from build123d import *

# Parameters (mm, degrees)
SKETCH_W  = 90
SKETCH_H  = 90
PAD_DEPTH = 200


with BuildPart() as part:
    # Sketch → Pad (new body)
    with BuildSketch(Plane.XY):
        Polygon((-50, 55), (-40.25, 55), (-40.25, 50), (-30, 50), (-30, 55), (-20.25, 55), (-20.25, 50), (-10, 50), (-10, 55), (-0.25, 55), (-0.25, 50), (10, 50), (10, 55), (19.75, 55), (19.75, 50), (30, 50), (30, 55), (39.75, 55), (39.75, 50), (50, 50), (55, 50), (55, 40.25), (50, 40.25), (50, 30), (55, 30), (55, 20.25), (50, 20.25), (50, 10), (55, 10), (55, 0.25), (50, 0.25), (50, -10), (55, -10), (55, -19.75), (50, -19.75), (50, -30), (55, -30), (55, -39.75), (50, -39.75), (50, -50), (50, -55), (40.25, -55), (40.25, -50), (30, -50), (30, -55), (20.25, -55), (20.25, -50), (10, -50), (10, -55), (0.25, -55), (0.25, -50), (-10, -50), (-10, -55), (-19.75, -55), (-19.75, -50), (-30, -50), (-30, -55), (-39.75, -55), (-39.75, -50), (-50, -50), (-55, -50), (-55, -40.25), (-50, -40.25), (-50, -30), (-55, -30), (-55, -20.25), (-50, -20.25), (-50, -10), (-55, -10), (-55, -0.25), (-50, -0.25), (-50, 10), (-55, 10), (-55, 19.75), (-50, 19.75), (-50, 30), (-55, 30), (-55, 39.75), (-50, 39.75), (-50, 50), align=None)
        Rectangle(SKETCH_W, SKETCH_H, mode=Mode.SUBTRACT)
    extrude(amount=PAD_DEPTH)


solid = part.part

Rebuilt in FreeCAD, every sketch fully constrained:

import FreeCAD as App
import Part
import Sketcher
from FreeCAD import Vector


def add_polygon(sketch, points):
    """Adds a closed chain of lines whose ends are joined by coincident constraints."""
    first, n = sketch.GeometryCount, len(points)
    for a, b in zip(points, points[1:] + points[:1]):
        sketch.addGeometry(Part.LineSegment(App.Vector(*a, 0), App.Vector(*b, 0)), False)
    for i in range(n):
        sketch.addConstraint(Sketcher.Constraint("Coincident", first + i, 2, first + (i + 1) % n, 1))

doc = App.newDocument("Part")
params = doc.addObject("Spreadsheet::Sheet", "Params")
for row, (alias, value) in enumerate([
    ("sketch1_width", "5 mm"),
    ("sketch1_width2", "90 mm"),
    ("sketch1_width3", "9.75 mm"),
    ("pad1_length", "200 mm"),
], start=1):
    params.set(f"A{row}", alias)
    params.set(f"B{row}", "=" + value)
    params.setAlias(f"B{row}", alias)

body = doc.addObject("PartDesign::Body", "Body")

# Sketch on XY plane
sketch1 = body.newObject("Sketcher::SketchObject", "Sketch")
sketch1.AttachmentSupport = (doc.getObject("XY_Plane"), [""])
sketch1.MapMode = "FlatFace"
add_polygon(sketch1, [(-40, 55), (-50, 55), (-50, 40), (-55, 40), (-55, 30), (-50, 30), (-50, 20), (-55, 20), (-55, 10), (-50, 10), (-50, 0), (-55, 0), (-55, -10), (-50, -10), (-50, -20), (-55, -20), (-55, -30), (-50, -30), (-50, -40), (-55, -40), (-55, -50), (-40, -50), (-40, -55), (-30, -55), (-30, -50), (-20, -50), (-20, -55), (-10, -55), (-10, -50), (0, -50), (0, -55), (10, -55), (10, -50), (20, -50), (20, -55), (30, -55), (30, -50), (40, -50), (40, -55), (50, -55), (50, -40), (55, -40), (55, -30), (50, -30), (50, -20), (55, -20), (55, -10), (50, -10), (50, 0), (55, 0), (55, 10), (50, 10), (50, 20), (55, 20), (55, 30), (50, 30), (50, 40), (55, 40), (55, 50), (40, 50), (40, 55), (30, 55), (30, 50), (20, 50), (20, 55), (10, 55), (10, 50), (0, 50), (0, 55), (-10, 55), (-10, 50), (-20, 50), (-20, 55), (-30, 55), (-30, 50), (-40, 50)])  # lines 0-75
add_polygon(sketch1, [(-45, -45), (-45, 45), (45, 45), (45, -45)])  # lines 76-79
sketch1.addConstraint(Sketcher.Constraint("Horizontal", 0))
sketch1.addConstraint(Sketcher.Constraint("Vertical", 1))
sketch1.addConstraint(Sketcher.Constraint("Horizontal", 2))
sketch1.addConstraint(Sketcher.Constraint("Vertical", 3))
sketch1.addConstraint(Sketcher.Constraint("Horizontal", 4))
sketch1.addConstraint(Sketcher.Constraint("Vertical", 5))
sketch1.addConstraint(Sketcher.Constraint("Horizontal", 6))
sketch1.addConstraint(Sketcher.Constraint("Vertical", 7))
sketch1.addConstraint(Sketcher.Constraint("Horizontal", 8))
sketch1.addConstraint(Sketcher.Constraint("Vertical", 9))
sketch1.addConstraint(Sketcher.Constraint("Horizontal", 10))
sketch1.addConstraint(Sketcher.Constraint("Vertical", 11))
sketch1.addConstraint(Sketcher.Constraint("Horizontal", 12))
sketch1.addConstraint(Sketcher.Constraint("Vertical", 13))
sketch1.addConstraint(Sketcher.Constraint("Horizontal", 14))
sketch1.addConstraint(Sketcher.Constraint("Vertical", 15))
sketch1.addConstraint(Sketcher.Constraint("Horizontal", 16))
sketch1.addConstraint(Sketcher.Constraint("Vertical", 17))
sketch1.addConstraint(Sketcher.Constraint("Horizontal", 18))
sketch1.addConstraint(Sketcher.Constraint("Vertical", 19))
sketch1.addConstraint(Sketcher.Constraint("Horizontal", 20))
sketch1.addConstraint(Sketcher.Constraint("Vertical", 21))
sketch1.addConstraint(Sketcher.Constraint("Horizontal", 22))
sketch1.addConstraint(Sketcher.Constraint("Vertical", 23))
sketch1.addConstraint(Sketcher.Constraint("Horizontal", 24))
sketch1.addConstraint(Sketcher.Constraint("Vertical", 25))
sketch1.addConstraint(Sketcher.Constraint("Horizontal", 26))
sketch1.addConstraint(Sketcher.Constraint("Vertical", 27))
sketch1.addConstraint(Sketcher.Constraint("Horizontal", 28))
sketch1.addConstraint(Sketcher.Constraint("Vertical", 29))
sketch1.addConstraint(Sketcher.Constraint("Horizontal", 30))
sketch1.addConstraint(Sketcher.Constraint("Vertical", 31))
sketch1.addConstraint(Sketcher.Constraint("Horizontal", 32))
sketch1.addConstraint(Sketcher.Constraint("Vertical", 33))
sketch1.addConstraint(Sketcher.Constraint("Horizontal", 34))
sketch1.addConstraint(Sketcher.Constraint("Vertical", 35))
sketch1.addConstraint(Sketcher.Constraint("Horizontal", 36))
sketch1.addConstraint(Sketcher.Constraint("Vertical", 37))
sketch1.addConstraint(Sketcher.Constraint("Horizontal", 38))
sketch1.addConstraint(Sketcher.Constraint("Vertical", 39))
sketch1.addConstraint(Sketcher.Constraint("Horizontal", 40))
sketch1.addConstraint(Sketcher.Constraint("Vertical", 41))
sketch1.addConstraint(Sketcher.Constraint("Horizontal", 42))
sketch1.addConstraint(Sketcher.Constraint("Vertical", 43))
sketch1.addConstraint(Sketcher.Constraint("Horizontal", 44))
sketch1.addConstraint(Sketcher.Constraint("Vertical", 45))
sketch1.addConstraint(Sketcher.Constraint("Horizontal", 46))
sketch1.addConstraint(Sketcher.Constraint("Vertical", 47))
sketch1.addConstraint(Sketcher.Constraint("Horizontal", 48))
sketch1.addConstraint(Sketcher.Constraint("Vertical", 49))
sketch1.addConstraint(Sketcher.Constraint("Horizontal", 50))
sketch1.addConstraint(Sketcher.Constraint("Vertical", 51))
sketch1.addConstraint(Sketcher.Constraint("Horizontal", 52))
sketch1.addConstraint(Sketcher.Constraint("Vertical", 53))
sketch1.addConstraint(Sketcher.Constraint("Horizontal", 54))
sketch1.addConstraint(Sketcher.Constraint("Vertical", 55))
sketch1.addConstraint(Sketcher.Constraint("Horizontal", 56))
sketch1.addConstraint(Sketcher.Constraint("Vertical", 57))
sketch1.addConstraint(Sketcher.Constraint("Horizontal", 58))
sketch1.addConstraint(Sketcher.Constraint("Vertical", 59))
sketch1.addConstraint(Sketcher.Constraint("Horizontal", 60))
sketch1.addConstraint(Sketcher.Constraint("Vertical", 61))
sketch1.addConstraint(Sketcher.Constraint("Horizontal", 62))
sketch1.addConstraint(Sketcher.Constraint("Vertical", 63))
sketch1.addConstraint(Sketcher.Constraint("Horizontal", 64))
sketch1.addConstraint(Sketcher.Constraint("Vertical", 65))
sketch1.addConstraint(Sketcher.Constraint("Horizontal", 66))
sketch1.addConstraint(Sketcher.Constraint("Vertical", 67))
sketch1.addConstraint(Sketcher.Constraint("Horizontal", 68))
sketch1.addConstraint(Sketcher.Constraint("Vertical", 69))
sketch1.addConstraint(Sketcher.Constraint("Horizontal", 70))
sketch1.addConstraint(Sketcher.Constraint("Vertical", 71))
sketch1.addConstraint(Sketcher.Constraint("Horizontal", 72))
sketch1.addConstraint(Sketcher.Constraint("Vertical", 73))
sketch1.addConstraint(Sketcher.Constraint("Horizontal", 74))
sketch1.addConstraint(Sketcher.Constraint("Vertical", 75))
sketch1.addConstraint(Sketcher.Constraint("Vertical", 76))
sketch1.addConstraint(Sketcher.Constraint("Horizontal", 77))
sketch1.addConstraint(Sketcher.Constraint("Vertical", 78))
sketch1.addConstraint(Sketcher.Constraint("Horizontal", 79))
sketch1.addConstraint(Sketcher.Constraint("Symmetric", 0, 2, 38, 2, -1, 1))
sketch1.addConstraint(Sketcher.Constraint("Symmetric", 2, 2, 40, 2, -1, 1))
sketch1.addConstraint(Sketcher.Constraint("Symmetric", 4, 2, 42, 2, -1, 1))
sketch1.addConstraint(Sketcher.Constraint("Symmetric", 6, 2, 44, 2, -1, 1))
sketch1.addConstraint(Sketcher.Constraint("Symmetric", 8, 2, 46, 2, -1, 1))
sketch1.addConstraint(Sketcher.Constraint("Symmetric", 10, 2, 48, 2, -1, 1))
sketch1.addConstraint(Sketcher.Constraint("Symmetric", 12, 2, 50, 2, -1, 1))
sketch1.addConstraint(Sketcher.Constraint("Symmetric", 14, 2, 52, 2, -1, 1))
sketch1.addConstraint(Sketcher.Constraint("Symmetric", 16, 2, 54, 2, -1, 1))
sketch1.addConstraint(Sketcher.Constraint("Symmetric", 18, 2, 56, 2, -1, 1))
sketch1.addConstraint(Sketcher.Constraint("Symmetric", 20, 2, 58, 2, -1, 1))
sketch1.addConstraint(Sketcher.Constraint("Symmetric", 22, 2, 60, 2, -1, 1))
sketch1.addConstraint(Sketcher.Constraint("Symmetric", 24, 2, 62, 2, -1, 1))
sketch1.addConstraint(Sketcher.Constraint("Symmetric", 26, 2, 64, 2, -1, 1))
sketch1.addConstraint(Sketcher.Constraint("Symmetric", 28, 2, 66, 2, -1, 1))
sketch1.addConstraint(Sketcher.Constraint("Symmetric", 30, 2, 68, 2, -1, 1))
sketch1.addConstraint(Sketcher.Constraint("Symmetric", 32, 2, 70, 2, -1, 1))
sketch1.addConstraint(Sketcher.Constraint("Symmetric", 34, 2, 72, 2, -1, 1))
sketch1.addConstraint(Sketcher.Constraint("Symmetric", 36, 2, 74, 2, -1, 1))
sketch1.addConstraint(Sketcher.Constraint("Symmetric", 76, 2, 78, 2, -1, 1))
sketch1.addConstraint(Sketcher.Constraint("Symmetric", 26, 2, 30, 2, -2))
sketch1.addConstraint(Sketcher.Constraint("Symmetric", 22, 2, 34, 2, -2))
sketch1.addConstraint(Sketcher.Constraint("Symmetric", 15, 2, 41, 2, -2))
sketch1.addConstraint(Sketcher.Constraint("Symmetric", 11, 2, 45, 2, -2))
sketch1.addConstraint(Sketcher.Constraint("Horizontal", 20, 2, 23, 2))
sketch1.addConstraint(Sketcher.Constraint("Horizontal", 22, 2, 25, 2))
sketch1.addConstraint(Sketcher.Constraint("Horizontal", 24, 2, 27, 2))
sketch1.addConstraint(Sketcher.Constraint("Horizontal", 28, 2, 31, 2))
sketch1.addConstraint(Sketcher.Constraint("Horizontal", 32, 2, 35, 2))
sketch1.addConstraint(Sketcher.Constraint("Horizontal", 34, 2, 37, 2))
sketch1.addConstraint(Sketcher.Constraint("Vertical", 1, 2, 4, 2))
sketch1.addConstraint(Sketcher.Constraint("Vertical", 3, 2, 6, 2))
sketch1.addConstraint(Sketcher.Constraint("Vertical", 5, 2, 8, 2))
sketch1.addConstraint(Sketcher.Constraint("Vertical", 9, 2, 12, 2))
sketch1.addConstraint(Sketcher.Constraint("Vertical", 13, 2, 16, 2))
sketch1.addConstraint(Sketcher.Constraint("Vertical", 15, 2, 18, 2))
sketch1.addConstraint(Sketcher.Constraint("Equal", 0, 22))
sketch1.addConstraint(Sketcher.Constraint("Equal", 22, 26))
sketch1.addConstraint(Sketcher.Constraint("Equal", 24, 28))
sketch1.addConstraint(Sketcher.Constraint("Equal", 26, 30))
sketch1.addConstraint(Sketcher.Constraint("Equal", 28, 32))
sketch1.addConstraint(Sketcher.Constraint("Equal", 32, 36))
sketch1.addConstraint(Sketcher.Constraint("Equal", 58, 1))
sketch1.addConstraint(Sketcher.Constraint("Equal", 72, 3))
sketch1.addConstraint(Sketcher.Constraint("Equal", 74, 5))
sketch1.addConstraint(Sketcher.Constraint("Equal", 3, 7))
sketch1.addConstraint(Sketcher.Constraint("Equal", 5, 9))
sketch1.addConstraint(Sketcher.Constraint("Equal", 7, 11))
sketch1.addConstraint(Sketcher.Constraint("Equal", 9, 13))
sketch1.addConstraint(Sketcher.Constraint("Equal", 13, 17))
sketch1.addConstraint(Sketcher.Constraint("Equal", 15, 19))
sketch1.addConstraint(Sketcher.Constraint("Equal", 79, 76))
sketch1.addConstraint(Sketcher.Constraint("DistanceX", 2, 2, 2, 1, 5.0))
sketch1.addConstraint(Sketcher.Constraint("DistanceX", 77, 1, 77, 2, 90.0))
sketch1.addConstraint(Sketcher.Constraint("DistanceX", 0, 2, -1, 1, 50.0))
sketch1.addConstraint(Sketcher.Constraint("DistanceX", 0, 2, 0, 1, 9.75))
sketch1.setExpression("Constraints[212]", "Params.sketch1_width")
sketch1.setExpression("Constraints[213]", "Params.sketch1_width2")
sketch1.setExpression("Constraints[215]", "Params.sketch1_width3")
pad1 = body.newObject("PartDesign::Pad", "Pad")
pad1.Profile = sketch1
pad1.setExpression("Length", "Params.pad1_length")

doc.recompute()
